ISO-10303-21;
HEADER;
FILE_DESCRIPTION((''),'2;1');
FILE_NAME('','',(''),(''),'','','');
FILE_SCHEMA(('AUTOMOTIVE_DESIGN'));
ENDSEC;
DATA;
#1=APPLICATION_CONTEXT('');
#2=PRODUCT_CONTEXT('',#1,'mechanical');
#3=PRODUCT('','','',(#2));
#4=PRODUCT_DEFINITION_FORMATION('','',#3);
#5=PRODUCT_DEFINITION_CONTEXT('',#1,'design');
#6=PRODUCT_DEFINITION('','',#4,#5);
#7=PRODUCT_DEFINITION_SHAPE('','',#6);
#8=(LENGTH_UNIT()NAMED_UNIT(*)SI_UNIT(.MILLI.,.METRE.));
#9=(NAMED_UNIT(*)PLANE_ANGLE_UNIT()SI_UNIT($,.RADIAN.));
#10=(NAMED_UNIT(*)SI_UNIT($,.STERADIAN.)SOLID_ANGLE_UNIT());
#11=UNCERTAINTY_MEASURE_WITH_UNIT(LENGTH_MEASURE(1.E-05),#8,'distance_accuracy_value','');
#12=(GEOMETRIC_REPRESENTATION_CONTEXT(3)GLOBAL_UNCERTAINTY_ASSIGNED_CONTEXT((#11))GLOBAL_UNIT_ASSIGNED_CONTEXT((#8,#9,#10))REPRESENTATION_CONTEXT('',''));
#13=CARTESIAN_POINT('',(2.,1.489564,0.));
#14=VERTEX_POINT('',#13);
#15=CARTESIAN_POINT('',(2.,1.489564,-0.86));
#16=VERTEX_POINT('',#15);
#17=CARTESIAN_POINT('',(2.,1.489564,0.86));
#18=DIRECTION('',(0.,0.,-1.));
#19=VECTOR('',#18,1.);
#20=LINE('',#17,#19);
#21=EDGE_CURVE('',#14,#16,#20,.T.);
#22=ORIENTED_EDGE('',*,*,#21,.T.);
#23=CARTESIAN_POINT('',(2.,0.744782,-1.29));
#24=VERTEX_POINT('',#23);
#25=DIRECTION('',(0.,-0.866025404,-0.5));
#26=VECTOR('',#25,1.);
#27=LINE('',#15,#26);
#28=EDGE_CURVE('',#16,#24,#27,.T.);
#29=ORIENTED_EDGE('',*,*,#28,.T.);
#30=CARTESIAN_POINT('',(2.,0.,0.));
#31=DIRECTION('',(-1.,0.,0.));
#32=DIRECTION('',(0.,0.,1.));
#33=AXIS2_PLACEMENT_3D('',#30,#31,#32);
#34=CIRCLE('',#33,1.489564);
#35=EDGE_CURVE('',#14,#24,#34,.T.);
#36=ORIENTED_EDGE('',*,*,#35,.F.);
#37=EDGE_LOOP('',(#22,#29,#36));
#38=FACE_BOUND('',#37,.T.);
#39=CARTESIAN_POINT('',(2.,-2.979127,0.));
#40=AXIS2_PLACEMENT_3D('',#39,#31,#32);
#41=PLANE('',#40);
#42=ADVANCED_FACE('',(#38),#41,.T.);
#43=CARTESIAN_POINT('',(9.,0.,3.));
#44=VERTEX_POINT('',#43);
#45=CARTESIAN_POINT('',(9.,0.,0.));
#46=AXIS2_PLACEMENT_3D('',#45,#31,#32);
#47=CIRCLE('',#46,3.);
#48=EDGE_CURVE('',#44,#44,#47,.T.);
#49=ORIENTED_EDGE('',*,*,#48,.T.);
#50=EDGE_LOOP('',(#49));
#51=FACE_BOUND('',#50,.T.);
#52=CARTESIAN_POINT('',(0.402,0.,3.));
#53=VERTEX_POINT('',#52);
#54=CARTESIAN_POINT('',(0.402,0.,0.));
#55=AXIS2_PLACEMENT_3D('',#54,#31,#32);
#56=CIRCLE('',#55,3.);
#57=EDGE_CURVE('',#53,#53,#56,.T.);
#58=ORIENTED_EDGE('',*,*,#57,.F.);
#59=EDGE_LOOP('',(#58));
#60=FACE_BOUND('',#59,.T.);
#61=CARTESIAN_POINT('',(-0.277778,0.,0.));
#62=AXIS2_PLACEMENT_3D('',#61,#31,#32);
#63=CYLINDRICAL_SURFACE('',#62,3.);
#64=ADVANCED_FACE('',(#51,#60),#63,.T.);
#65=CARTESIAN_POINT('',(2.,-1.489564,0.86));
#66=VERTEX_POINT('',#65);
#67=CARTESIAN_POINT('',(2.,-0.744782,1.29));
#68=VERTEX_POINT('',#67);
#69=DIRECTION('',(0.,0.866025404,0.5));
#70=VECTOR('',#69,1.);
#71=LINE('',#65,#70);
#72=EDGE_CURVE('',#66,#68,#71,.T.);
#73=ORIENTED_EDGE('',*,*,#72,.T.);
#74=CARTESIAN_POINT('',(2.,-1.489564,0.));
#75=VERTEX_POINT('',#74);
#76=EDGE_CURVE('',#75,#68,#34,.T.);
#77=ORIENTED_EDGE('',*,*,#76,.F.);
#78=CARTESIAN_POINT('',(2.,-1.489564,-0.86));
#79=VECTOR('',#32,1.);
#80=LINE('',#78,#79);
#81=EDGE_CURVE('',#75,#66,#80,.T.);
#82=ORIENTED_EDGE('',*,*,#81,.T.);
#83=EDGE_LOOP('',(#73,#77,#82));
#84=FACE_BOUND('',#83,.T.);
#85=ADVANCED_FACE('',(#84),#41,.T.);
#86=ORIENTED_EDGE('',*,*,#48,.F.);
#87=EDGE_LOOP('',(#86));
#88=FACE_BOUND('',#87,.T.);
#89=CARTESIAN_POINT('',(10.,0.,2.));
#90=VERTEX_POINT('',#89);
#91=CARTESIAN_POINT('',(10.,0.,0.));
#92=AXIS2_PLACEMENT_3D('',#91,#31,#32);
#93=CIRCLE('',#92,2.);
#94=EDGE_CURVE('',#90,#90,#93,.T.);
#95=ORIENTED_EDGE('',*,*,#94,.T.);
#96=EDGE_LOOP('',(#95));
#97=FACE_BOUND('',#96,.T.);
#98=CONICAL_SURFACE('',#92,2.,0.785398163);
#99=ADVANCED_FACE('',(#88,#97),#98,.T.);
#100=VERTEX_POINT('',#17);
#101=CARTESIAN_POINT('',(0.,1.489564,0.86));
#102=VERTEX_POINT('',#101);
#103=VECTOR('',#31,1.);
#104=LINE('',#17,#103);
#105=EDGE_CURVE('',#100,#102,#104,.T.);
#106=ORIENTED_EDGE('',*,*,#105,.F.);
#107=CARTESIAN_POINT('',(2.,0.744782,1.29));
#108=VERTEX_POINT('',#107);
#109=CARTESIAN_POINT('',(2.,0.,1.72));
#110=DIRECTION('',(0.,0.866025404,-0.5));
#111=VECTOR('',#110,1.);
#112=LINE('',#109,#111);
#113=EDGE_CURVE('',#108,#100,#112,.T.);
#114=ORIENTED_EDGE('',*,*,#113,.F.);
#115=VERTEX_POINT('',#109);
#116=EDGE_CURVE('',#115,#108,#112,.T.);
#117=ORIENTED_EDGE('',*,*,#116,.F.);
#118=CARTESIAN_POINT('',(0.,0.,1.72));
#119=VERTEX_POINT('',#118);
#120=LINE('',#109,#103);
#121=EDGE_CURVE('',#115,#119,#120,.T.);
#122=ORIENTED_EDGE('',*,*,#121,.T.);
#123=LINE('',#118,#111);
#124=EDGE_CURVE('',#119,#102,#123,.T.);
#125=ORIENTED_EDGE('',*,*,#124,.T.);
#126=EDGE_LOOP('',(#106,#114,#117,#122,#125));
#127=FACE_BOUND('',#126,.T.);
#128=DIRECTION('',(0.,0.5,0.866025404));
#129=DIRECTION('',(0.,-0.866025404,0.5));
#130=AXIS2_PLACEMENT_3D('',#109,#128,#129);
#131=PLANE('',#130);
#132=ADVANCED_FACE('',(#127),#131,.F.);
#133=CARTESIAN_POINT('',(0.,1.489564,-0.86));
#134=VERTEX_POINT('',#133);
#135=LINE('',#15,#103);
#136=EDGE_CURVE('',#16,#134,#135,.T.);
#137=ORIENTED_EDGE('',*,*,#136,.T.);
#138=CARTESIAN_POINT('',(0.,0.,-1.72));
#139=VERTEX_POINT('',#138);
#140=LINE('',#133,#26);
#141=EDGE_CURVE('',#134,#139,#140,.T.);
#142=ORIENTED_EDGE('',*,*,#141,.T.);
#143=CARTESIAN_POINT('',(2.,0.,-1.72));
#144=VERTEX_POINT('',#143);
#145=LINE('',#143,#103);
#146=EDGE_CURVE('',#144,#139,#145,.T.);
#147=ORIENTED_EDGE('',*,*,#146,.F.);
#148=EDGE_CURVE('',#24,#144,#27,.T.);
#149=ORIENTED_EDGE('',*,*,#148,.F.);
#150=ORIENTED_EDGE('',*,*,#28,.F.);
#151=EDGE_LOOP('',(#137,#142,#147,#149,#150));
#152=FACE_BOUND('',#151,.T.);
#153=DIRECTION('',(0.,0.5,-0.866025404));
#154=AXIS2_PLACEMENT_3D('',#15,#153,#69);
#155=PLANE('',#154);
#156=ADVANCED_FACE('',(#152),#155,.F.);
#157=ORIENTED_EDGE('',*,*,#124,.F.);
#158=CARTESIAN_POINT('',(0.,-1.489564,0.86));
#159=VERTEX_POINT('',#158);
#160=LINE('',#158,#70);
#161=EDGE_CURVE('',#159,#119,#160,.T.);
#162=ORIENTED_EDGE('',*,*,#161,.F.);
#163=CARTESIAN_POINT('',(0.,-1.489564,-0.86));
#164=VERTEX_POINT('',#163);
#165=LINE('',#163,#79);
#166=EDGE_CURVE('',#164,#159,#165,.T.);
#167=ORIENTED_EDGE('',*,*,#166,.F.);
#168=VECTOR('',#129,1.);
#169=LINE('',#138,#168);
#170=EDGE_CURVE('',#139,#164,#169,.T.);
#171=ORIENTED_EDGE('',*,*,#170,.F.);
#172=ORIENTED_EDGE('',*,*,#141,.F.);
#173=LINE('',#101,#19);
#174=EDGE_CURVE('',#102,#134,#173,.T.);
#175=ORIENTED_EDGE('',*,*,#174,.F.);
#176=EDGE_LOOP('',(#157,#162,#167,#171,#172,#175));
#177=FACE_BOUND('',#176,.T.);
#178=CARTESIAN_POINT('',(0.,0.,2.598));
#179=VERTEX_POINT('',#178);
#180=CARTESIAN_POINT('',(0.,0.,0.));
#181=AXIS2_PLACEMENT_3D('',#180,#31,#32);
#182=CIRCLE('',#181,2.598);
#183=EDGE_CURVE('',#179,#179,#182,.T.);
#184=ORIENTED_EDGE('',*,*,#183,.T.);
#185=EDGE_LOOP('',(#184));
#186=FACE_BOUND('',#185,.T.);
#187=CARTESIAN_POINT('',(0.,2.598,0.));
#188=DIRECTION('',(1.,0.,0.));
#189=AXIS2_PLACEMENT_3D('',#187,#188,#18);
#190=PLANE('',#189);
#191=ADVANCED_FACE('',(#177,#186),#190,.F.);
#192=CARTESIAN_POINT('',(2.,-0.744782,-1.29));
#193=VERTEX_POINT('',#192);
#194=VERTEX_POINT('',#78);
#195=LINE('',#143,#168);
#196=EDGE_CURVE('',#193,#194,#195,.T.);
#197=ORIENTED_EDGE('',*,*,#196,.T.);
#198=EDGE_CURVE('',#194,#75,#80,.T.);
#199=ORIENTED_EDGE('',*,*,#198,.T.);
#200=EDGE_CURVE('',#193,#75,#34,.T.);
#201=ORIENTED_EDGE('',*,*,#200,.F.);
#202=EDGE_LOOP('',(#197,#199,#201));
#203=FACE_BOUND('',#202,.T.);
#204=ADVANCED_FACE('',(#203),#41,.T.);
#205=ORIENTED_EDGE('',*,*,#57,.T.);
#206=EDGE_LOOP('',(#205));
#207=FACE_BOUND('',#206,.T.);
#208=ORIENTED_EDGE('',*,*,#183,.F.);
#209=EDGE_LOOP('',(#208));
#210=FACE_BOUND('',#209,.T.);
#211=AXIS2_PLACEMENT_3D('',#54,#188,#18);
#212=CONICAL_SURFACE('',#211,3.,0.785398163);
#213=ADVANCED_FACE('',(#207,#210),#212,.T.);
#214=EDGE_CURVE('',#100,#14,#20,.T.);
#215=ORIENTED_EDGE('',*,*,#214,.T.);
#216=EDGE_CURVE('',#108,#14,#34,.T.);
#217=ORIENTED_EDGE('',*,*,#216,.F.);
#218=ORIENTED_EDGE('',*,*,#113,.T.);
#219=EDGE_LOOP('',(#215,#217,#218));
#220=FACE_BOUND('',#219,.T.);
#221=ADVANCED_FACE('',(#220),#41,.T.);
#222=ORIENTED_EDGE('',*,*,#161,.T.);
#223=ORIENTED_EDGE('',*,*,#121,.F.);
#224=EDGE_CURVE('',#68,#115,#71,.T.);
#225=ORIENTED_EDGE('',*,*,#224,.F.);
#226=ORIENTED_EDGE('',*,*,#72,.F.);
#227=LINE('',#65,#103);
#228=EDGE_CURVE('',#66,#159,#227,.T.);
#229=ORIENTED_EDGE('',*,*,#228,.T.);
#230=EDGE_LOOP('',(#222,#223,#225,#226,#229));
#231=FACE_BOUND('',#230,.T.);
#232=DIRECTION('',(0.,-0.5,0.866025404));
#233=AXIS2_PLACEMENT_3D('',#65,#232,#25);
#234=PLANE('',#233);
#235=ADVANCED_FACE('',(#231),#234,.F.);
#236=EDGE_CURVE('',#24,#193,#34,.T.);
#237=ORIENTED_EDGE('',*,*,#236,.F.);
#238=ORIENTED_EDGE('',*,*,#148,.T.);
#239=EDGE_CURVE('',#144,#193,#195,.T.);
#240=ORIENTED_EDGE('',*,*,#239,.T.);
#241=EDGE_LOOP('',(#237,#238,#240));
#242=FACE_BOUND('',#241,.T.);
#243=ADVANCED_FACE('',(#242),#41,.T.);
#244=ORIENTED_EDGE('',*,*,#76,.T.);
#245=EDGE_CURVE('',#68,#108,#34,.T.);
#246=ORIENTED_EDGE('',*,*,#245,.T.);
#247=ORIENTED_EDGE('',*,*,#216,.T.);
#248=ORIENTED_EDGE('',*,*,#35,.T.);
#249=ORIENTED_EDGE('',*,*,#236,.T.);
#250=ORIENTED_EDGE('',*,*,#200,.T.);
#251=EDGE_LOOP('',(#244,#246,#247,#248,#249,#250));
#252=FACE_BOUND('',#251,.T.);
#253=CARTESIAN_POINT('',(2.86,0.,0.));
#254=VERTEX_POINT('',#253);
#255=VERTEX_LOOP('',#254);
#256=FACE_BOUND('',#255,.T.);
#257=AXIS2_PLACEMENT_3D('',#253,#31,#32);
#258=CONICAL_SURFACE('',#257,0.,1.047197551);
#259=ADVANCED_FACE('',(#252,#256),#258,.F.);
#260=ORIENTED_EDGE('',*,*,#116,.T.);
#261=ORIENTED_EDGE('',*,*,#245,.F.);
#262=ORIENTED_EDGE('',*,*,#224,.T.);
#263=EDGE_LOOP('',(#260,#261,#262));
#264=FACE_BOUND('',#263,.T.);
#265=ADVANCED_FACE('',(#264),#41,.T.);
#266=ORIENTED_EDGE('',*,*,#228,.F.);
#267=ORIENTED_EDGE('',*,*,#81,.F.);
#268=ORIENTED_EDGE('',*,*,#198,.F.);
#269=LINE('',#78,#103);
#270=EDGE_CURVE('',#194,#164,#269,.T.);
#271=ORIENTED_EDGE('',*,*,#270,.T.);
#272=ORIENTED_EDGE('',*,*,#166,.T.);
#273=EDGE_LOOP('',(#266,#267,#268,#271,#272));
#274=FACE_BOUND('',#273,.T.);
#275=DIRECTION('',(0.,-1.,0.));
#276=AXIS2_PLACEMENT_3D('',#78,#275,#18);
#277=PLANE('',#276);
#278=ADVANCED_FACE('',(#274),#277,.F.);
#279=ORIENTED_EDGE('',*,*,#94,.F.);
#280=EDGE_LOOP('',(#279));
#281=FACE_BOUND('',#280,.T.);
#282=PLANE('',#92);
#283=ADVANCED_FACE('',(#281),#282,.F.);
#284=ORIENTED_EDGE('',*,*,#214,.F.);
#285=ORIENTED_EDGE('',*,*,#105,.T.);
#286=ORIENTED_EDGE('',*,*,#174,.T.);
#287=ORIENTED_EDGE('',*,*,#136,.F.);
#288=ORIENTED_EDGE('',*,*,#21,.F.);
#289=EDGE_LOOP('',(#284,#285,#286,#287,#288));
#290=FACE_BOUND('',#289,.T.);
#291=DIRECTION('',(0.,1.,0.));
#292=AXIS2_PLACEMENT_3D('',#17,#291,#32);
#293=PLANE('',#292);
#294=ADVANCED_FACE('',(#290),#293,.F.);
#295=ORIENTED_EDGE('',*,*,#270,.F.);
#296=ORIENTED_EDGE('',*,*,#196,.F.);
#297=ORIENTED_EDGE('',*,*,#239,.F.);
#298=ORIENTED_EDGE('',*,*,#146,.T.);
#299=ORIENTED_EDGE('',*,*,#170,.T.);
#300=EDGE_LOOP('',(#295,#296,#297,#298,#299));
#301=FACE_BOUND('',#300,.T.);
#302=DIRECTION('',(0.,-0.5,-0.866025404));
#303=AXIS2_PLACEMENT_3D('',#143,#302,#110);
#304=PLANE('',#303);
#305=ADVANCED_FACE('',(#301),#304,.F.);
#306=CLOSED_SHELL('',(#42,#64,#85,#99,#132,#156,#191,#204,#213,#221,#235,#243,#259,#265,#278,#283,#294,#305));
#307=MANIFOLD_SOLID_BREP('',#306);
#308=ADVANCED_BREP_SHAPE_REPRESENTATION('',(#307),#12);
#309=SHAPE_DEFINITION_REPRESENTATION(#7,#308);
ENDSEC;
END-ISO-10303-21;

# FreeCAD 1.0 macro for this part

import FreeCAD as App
import Part
import Sketcher
from FreeCAD import Vector
Q = App.Units.Quantity

doc = App.newDocument("Part")
body = doc.addObject("PartDesign::Body", "Body")

# Sketch on XY plane
sketch1 = body.newObject("Sketcher::SketchObject", "Sketch")
sketch1.AttachmentSupport = (doc.getObject("XY_Plane"), [""])
sketch1.MapMode = "FlatFace"
sketch1.addGeometry(Part.LineSegment(Vector(0, 0, 0), Vector(10, 0, 0)), False)
sketch1.addGeometry(Part.LineSegment(Vector(10, 0, 0), Vector(10, 2, 0)), False)
sketch1.addGeometry(Part.LineSegment(Vector(10, 2, 0), Vector(9, 3, 0)), False)
sketch1.addGeometry(Part.LineSegment(Vector(9, 3, 0), Vector(0.4, 3, 0)), False)
sketch1.addGeometry(Part.LineSegment(Vector(0.4, 3, 0), Vector(0, 2.6, 0)), False)
sketch1.addGeometry(Part.LineSegment(Vector(0, 2.6, 0), Vector(0, 0, 0)), False)
sketch1.addConstraint(Sketcher.Constraint("Coincident", 0, 2, 1, 1))
sketch1.addConstraint(Sketcher.Constraint("Coincident", 1, 2, 2, 1))
sketch1.addConstraint(Sketcher.Constraint("Coincident", 2, 2, 3, 1))
sketch1.addConstraint(Sketcher.Constraint("Coincident", 3, 2, 4, 1))
sketch1.addConstraint(Sketcher.Constraint("Coincident", 4, 2, 5, 1))
sketch1.addConstraint(Sketcher.Constraint("Coincident", 5, 2, 0, 1))
sketch1.addConstraint(Sketcher.Constraint("Horizontal", 0))
sketch1.addConstraint(Sketcher.Constraint("Vertical", 1))
sketch1.addConstraint(Sketcher.Constraint("Horizontal", 3))
sketch1.addConstraint(Sketcher.Constraint("Vertical", 5))
sketch1.addConstraint(Sketcher.Constraint("Coincident", 5, 2, -1, 1))
sketch1.addConstraint(Sketcher.Constraint("Perpendicular", 2, 4))
sketch1.addConstraint(Sketcher.Constraint("DistanceX", 0, 1, 0, 2, Q("10 mm")))
sketch1.addConstraint(Sketcher.Constraint("DistanceY", 1, 1, 1, 2, Q("2 mm")))
sketch1.addConstraint(Sketcher.Constraint("Angle", 2, Q("135 deg")))
sketch1.addConstraint(Sketcher.Constraint("DistanceX", -1, 1, 2, 2, Q("9 mm")))
sketch1.addConstraint(Sketcher.Constraint("DistanceX", 3, 2, 3, 1, Q("8.598 mm")))
revolution = body.newObject("PartDesign::Revolution", "Revolution")
revolution.Profile = sketch1
revolution.ReferenceAxis = (sketch1, ["H_Axis"])
revolution.Angle = 360

# Sketch on YZ plane
sketch2 = body.newObject("Sketcher::SketchObject", "Sketch001")
sketch2.AttachmentSupport = (doc.getObject("YZ_Plane"), [""])
sketch2.MapMode = "FlatFace"
sketch2.addGeometry(Part.LineSegment(Vector(-1.5, -0.9, 0), Vector(-1.5, 0.9, 0)), False)
sketch2.addGeometry(Part.LineSegment(Vector(-1.5, 0.9, 0), Vector(0, 1.7, 0)), False)
sketch2.addGeometry(Part.LineSegment(Vector(0, 1.7, 0), Vector(1.5, 0.9, 0)), False)
sketch2.addGeometry(Part.LineSegment(Vector(1.5, 0.9, 0), Vector(1.5, -0.9, 0)), False)
sketch2.addGeometry(Part.LineSegment(Vector(1.5, -0.9, 0), Vector(0, -1.7, 0)), False)
sketch2.addGeometry(Part.LineSegment(Vector(0, -1.7, 0), Vector(-1.5, -0.9, 0)), False)
sketch2.addConstraint(Sketcher.Constraint("Coincident", 0, 2, 1, 1))
sketch2.addConstraint(Sketcher.Constraint("Coincident", 1, 2, 2, 1))
sketch2.addConstraint(Sketcher.Constraint("Coincident", 2, 2, 3, 1))
sketch2.addConstraint(Sketcher.Constraint("Coincident", 3, 2, 4, 1))
sketch2.addConstraint(Sketcher.Constraint("Coincident", 4, 2, 5, 1))
sketch2.addConstraint(Sketcher.Constraint("Coincident", 5, 2, 0, 1))
sketch2.addConstraint(Sketcher.Constraint("Vertical", 0))
sketch2.addConstraint(Sketcher.Constraint("Vertical", 3))
sketch2.addConstraint(Sketcher.Constraint("Symmetric", 0, 2, 3, 2, -1, 1))
sketch2.addConstraint(Sketcher.Constraint("Symmetric", 1, 2, 4, 2, -1, 1))
sketch2.addConstraint(Sketcher.Constraint("PointOnObject", 1, 2, -2))
sketch2.addConstraint(Sketcher.Constraint("Parallel", 2, 5))
sketch2.addConstraint(Sketcher.Constraint("Horizontal", 0, 2, 2, 2))
sketch2.addConstraint(Sketcher.Constraint("Angle", 1, Q("30 deg")))
sketch2.addConstraint(Sketcher.Constraint("DistanceY", 0, 1, 0, 2, Q("1.72 mm")))
sketch2.addConstraint(Sketcher.Constraint("Distance", 1, Q("1.72 mm")))
pocket1 = body.newObject("PartDesign::Pocket", "Pocket")
pocket1.Profile = sketch2
pocket1.Length = 2
pocket1.Reversed = True

# Sketch on XY plane
sketch3 = body.newObject("Sketcher::SketchObject", "Sketch002")
sketch3.AttachmentSupport = (doc.getObject("XY_Plane"), [""])
sketch3.MapMode = "FlatFace"
sketch3.addGeometry(Part.LineSegment(Vector(2.9, 0, 0), Vector(2, 1.5, 0)), False)
sketch3.addGeometry(Part.LineSegment(Vector(2, 1.5, 0), Vector(2, 0, 0)), False)
sketch3.addGeometry(Part.LineSegment(Vector(2, 0, 0), Vector(2.9, 0, 0)), False)
sketch3.addConstraint(Sketcher.Constraint("Coincident", 0, 2, 1, 1))
sketch3.addConstraint(Sketcher.Constraint("Coincident", 1, 2, 2, 1))
sketch3.addConstraint(Sketcher.Constraint("Coincident", 2, 2, 0, 1))
sketch3.addConstraint(Sketcher.Constraint("Vertical", 1))
sketch3.addConstraint(Sketcher.Constraint("Horizontal", 2))
sketch3.addConstraint(Sketcher.Constraint("PointOnObject", 1, 2, -1))
sketch3.addConstraint(Sketcher.Constraint("Angle", 0, Q("120 deg")))
sketch3.addConstraint(Sketcher.Constraint("DistanceX", -1, 1, 0, 2, Q("2 mm")))
sketch3.addConstraint(Sketcher.Constraint("DistanceX", 2, 1, 2, 2, Q("0.86 mm")))
groove = body.newObject("PartDesign::Groove", "Groove")
groove.Profile = sketch3
groove.ReferenceAxis = (sketch3, ["H_Axis"])
groove.Angle = 360

doc.recompute()
